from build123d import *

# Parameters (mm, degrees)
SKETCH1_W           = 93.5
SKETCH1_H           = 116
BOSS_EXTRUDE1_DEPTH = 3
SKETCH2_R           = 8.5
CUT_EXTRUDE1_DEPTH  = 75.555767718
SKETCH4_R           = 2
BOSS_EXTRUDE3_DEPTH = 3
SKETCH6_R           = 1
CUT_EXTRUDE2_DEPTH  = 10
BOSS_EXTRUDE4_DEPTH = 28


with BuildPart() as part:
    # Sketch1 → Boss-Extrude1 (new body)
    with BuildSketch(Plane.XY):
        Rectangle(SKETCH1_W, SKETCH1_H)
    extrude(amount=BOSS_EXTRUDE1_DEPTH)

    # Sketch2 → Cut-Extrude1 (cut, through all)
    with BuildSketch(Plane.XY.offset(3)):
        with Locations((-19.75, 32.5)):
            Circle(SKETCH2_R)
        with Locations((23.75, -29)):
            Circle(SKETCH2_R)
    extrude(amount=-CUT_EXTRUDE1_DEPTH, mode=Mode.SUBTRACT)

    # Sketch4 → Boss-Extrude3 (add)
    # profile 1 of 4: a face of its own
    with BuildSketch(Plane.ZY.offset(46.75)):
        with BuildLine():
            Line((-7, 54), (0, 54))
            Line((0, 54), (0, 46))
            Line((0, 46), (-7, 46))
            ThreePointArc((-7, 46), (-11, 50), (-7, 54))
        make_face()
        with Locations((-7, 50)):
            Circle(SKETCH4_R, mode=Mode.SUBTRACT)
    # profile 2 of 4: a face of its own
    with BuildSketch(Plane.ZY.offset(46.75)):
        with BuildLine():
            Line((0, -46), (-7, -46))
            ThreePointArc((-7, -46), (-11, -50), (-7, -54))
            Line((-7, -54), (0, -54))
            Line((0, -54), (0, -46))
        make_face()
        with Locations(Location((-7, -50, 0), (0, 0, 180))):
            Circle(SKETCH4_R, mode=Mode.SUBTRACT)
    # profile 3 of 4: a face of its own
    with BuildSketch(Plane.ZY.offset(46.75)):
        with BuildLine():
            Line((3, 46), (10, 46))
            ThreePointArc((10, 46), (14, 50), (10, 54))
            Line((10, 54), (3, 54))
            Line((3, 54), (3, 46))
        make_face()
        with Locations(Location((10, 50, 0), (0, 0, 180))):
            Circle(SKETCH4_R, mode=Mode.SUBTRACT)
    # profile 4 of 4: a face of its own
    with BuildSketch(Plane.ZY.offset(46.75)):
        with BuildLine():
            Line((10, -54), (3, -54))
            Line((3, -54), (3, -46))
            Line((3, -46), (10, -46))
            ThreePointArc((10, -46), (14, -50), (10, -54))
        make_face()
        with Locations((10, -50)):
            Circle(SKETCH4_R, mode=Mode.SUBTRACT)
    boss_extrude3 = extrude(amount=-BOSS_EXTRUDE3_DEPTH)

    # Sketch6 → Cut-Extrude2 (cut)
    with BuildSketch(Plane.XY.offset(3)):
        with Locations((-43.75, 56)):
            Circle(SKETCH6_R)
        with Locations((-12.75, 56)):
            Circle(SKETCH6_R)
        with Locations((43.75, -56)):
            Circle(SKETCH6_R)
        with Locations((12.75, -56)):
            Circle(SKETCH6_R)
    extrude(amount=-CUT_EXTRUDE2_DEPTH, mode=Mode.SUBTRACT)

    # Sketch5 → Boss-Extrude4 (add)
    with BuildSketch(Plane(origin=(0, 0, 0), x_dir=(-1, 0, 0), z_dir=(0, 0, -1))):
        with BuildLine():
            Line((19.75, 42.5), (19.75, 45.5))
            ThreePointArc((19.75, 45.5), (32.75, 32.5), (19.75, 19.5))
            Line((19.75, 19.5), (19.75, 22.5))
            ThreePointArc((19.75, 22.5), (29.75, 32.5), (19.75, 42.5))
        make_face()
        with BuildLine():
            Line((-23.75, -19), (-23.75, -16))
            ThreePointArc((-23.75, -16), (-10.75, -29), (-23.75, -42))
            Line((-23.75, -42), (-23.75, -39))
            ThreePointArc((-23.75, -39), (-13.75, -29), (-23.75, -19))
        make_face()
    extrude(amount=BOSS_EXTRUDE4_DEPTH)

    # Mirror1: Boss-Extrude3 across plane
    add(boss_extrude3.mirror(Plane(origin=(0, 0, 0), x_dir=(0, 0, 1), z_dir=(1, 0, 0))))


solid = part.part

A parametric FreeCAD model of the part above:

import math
import FreeCAD as App
import Part
import Sketcher
from FreeCAD import Vector


def add_polygon(sketch, points):
    """Adds a closed chain of lines whose ends are joined by coincident constraints."""
    first, n = sketch.GeometryCount, len(points)
    for a, b in zip(points, points[1:] + points[:1]):
        sketch.addGeometry(Part.LineSegment(App.Vector(*a, 0), App.Vector(*b, 0)), False)
    for i in range(n):
        sketch.addConstraint(Sketcher.Constraint("Coincident", first + i, 2, first + (i + 1) % n, 1))

doc = App.newDocument("Part")
body = doc.addObject("PartDesign::Body", "Body")

sketch1 = body.newObject("Sketcher::SketchObject", "Sketch")
sketch1.AttachmentSupport = (doc.getObject("XY_Plane"), [""])
sketch1.MapMode = "FlatFace"
add_polygon(sketch1, [(-47, 58), (-47, -58), (47, -58), (47, 58)])
sketch1.addConstraint(Sketcher.Constraint("Vertical", 0))
sketch1.addConstraint(Sketcher.Constraint("Horizontal", 1))
sketch1.addConstraint(Sketcher.Constraint("Vertical", 2))
sketch1.addConstraint(Sketcher.Constraint("Horizontal", 3))
sketch1.addConstraint(Sketcher.Constraint("Symmetric", 0, 2, 2, 2, -1, 1))
sketch1.addConstraint(Sketcher.Constraint("DistanceY", 0, 2, 0, 1, 116.0))
sketch1.addConstraint(Sketcher.Constraint("DistanceX", 1, 1, 1, 2, 93.5))
pad1 = body.newObject("PartDesign::Pad", "Pad")
pad1.Profile = sketch1
pad1.Length = 3

sketch2 = body.newObject("Sketcher::SketchObject", "Sketch001")
sketch2.AttachmentSupport = (doc.getObject("XY_Plane"), [""])
sketch2.MapMode = "FlatFace"
sketch2.AttachmentOffset = App.Placement(Vector(0, 0, 3), App.Rotation())
sketch2.addGeometry(Part.Circle(Vector(-20, 32, 0), Vector(0, 0, 1), 8), False)
sketch2.addGeometry(Part.Circle(Vector(24, -29, 0), Vector(0, 0, 1), 8), False)
sketch2.addConstraint(Sketcher.Constraint("Equal", 0, 1))
sketch2.addConstraint(Sketcher.Constraint("Diameter", 0, 17.0))
sketch2.addConstraint(Sketcher.Constraint("DistanceY", 1, 3, -1, 1, 29.0))
sketch2.addConstraint(Sketcher.Constraint("DistanceY", -1, 1, 0, 3, 32.5))
sketch2.addConstraint(Sketcher.Constraint("DistanceX", 0, 3, 1, 3, 43.5))
sketch2.addConstraint(Sketcher.Constraint("DistanceX", 0, 3, -1, 1, 19.75))
pocket1 = body.newObject("PartDesign::Pocket", "Pocket")
pocket1.Profile = sketch2
pocket1.Type = "ThroughAll"

sketch3 = body.newObject("Sketcher::SketchObject", "Sketch002")
sketch3.AttachmentSupport = (doc.getObject("YZ_Plane"), [""])
sketch3.MapMode = "FlatFace"
sketch3.AttachmentOffset = App.Placement(Vector(0, 0, -46.75), App.Rotation())
sketch3.addGeometry(Part.LineSegment(Vector(54, 0, 0), Vector(54, -7, 0)), False)
sketch3.addGeometry(Part.ArcOfCircle(Part.Circle(Vector(50, -7, 0), Vector(0, 0, 1), 4), math.radians(180), math.radians(360)), False)
sketch3.addGeometry(Part.LineSegment(Vector(46, -7, 0), Vector(46, 0, 0)), False)
sketch3.addGeometry(Part.LineSegment(Vector(46, 0, 0), Vector(54, 0, 0)), False)
sketch3.addGeometry(Part.Circle(Vector(50, -7, 0), Vector(0, 0, 1), 2), False)
sketch3.addGeometry(Part.LineSegment(Vector(-46, 0, 0), Vector(-46, -7, 0)), False)
sketch3.addGeometry(Part.ArcOfCircle(Part.Circle(Vector(-50, -7, 0), Vector(0, 0, 1), 4), math.radians(180), math.radians(360)), False)
sketch3.addGeometry(Part.LineSegment(Vector(-54, -7, 0), Vector(-54, 0, 0)), False)
sketch3.addGeometry(Part.LineSegment(Vector(-54, 0, 0), Vector(-46, 0, 0)), False)
sketch3.addGeometry(Part.Circle(Vector(-50, -7, 0), Vector(0, 0, 1), 2), False)
sketch3.addGeometry(Part.LineSegment(Vector(46, 3, 0), Vector(46, 10, 0)), False)
sketch3.addGeometry(Part.ArcOfCircle(Part.Circle(Vector(50, 10, 0), Vector(0, 0, 1), 4), math.radians(0), math.radians(180)), False)
sketch3.addGeometry(Part.LineSegment(Vector(54, 10, 0), Vector(54, 3, 0)), False)
sketch3.addGeometry(Part.LineSegment(Vector(54, 3, 0), Vector(46, 3, 0)), False)
sketch3.addGeometry(Part.Circle(Vector(50, 10, 0), Vector(0, 0, 1), 2), False)
sketch3.addGeometry(Part.LineSegment(Vector(-54, 3, 0), Vector(-54, 10, 0)), False)
sketch3.addGeometry(Part.ArcOfCircle(Part.Circle(Vector(-50, 10, 0), Vector(0, 0, 1), 4), math.radians(0), math.radians(180)), False)
sketch3.addGeometry(Part.LineSegment(Vector(-46, 10, 0), Vector(-46, 3, 0)), False)
sketch3.addGeometry(Part.LineSegment(Vector(-46, 3, 0), Vector(-54, 3, 0)), False)
sketch3.addGeometry(Part.Circle(Vector(-50, 10, 0), Vector(0, 0, 1), 2), False)
sketch3.addConstraint(Sketcher.Constraint("Tangent", 0, 2, 1, 2))
sketch3.addConstraint(Sketcher.Constraint("Tangent", 1, 1, 2, 1))
sketch3.addConstraint(Sketcher.Constraint("Coincident", 2, 2, 3, 1))
sketch3.addConstraint(Sketcher.Constraint("Coincident", 3, 2, 0, 1))
sketch3.addConstraint(Sketcher.Constraint("Tangent", 5, 2, 6, 2))
sketch3.addConstraint(Sketcher.Constraint("Tangent", 6, 1, 7, 1))
sketch3.addConstraint(Sketcher.Constraint("Coincident", 7, 2, 8, 1))
sketch3.addConstraint(Sketcher.Constraint("Coincident", 8, 2, 5, 1))
sketch3.addConstraint(Sketcher.Constraint("Tangent", 10, 2, 11, 2))
sketch3.addConstraint(Sketcher.Constraint("Tangent", 11, 1, 12, 1))
sketch3.addConstraint(Sketcher.Constraint("Coincident", 12, 2, 13, 1))
sketch3.addConstraint(Sketcher.Constraint("Coincident", 13, 2, 10, 1))
sketch3.addConstraint(Sketcher.Constraint("Tangent", 15, 2, 16, 2))
sketch3.addConstraint(Sketcher.Constraint("Tangent", 16, 1, 17, 1))
sketch3.addConstraint(Sketcher.Constraint("Coincident", 17, 2, 18, 1))
sketch3.addConstraint(Sketcher.Constraint("Coincident", 18, 2, 15, 1))
sketch3.addConstraint(Sketcher.Constraint("Vertical", 0))
sketch3.addConstraint(Sketcher.Constraint("Vertical", 2))
sketch3.addConstraint(Sketcher.Constraint("Horizontal", 3))
sketch3.addConstraint(Sketcher.Constraint("Vertical", 5))
sketch3.addConstraint(Sketcher.Constraint("Vertical", 7))
sketch3.addConstraint(Sketcher.Constraint("Horizontal", 8))
sketch3.addConstraint(Sketcher.Constraint("Vertical", 10))
sketch3.addConstraint(Sketcher.Constraint("Vertical", 12))
sketch3.addConstraint(Sketcher.Constraint("Horizontal", 13))
sketch3.addConstraint(Sketcher.Constraint("Vertical", 15))
sketch3.addConstraint(Sketcher.Constraint("Vertical", 17))
sketch3.addConstraint(Sketcher.Constraint("Horizontal", 18))
sketch3.addConstraint(Sketcher.Constraint("Coincident", 4, 3, 1, 3))
sketch3.addConstraint(Sketcher.Constraint("Coincident", 9, 3, 6, 3))
sketch3.addConstraint(Sketcher.Constraint("Coincident", 14, 3, 11, 3))
sketch3.addConstraint(Sketcher.Constraint("Coincident", 19, 3, 16, 3))
sketch3.addConstraint(Sketcher.Constraint("Equal", 1, 6))
sketch3.addConstraint(Sketcher.Constraint("Equal", 4, 9))
sketch3.addConstraint(Sketcher.Constraint("Equal", 6, 11))
sketch3.addConstraint(Sketcher.Constraint("Equal", 9, 14))
sketch3.addConstraint(Sketcher.Constraint("Equal", 11, 16))
sketch3.addConstraint(Sketcher.Constraint("Equal", 14, 19))
sketch3.addConstraint(Sketcher.Constraint("Symmetric", 3, 2, 7, 2, -1, 1))
sketch3.addConstraint(Sketcher.Constraint("Symmetric", 11, 3, 16, 3, -2))
sketch3.addConstraint(Sketcher.Constraint("PointOnObject", 2, 2, -1))
sketch3.addConstraint(Sketcher.Constraint("Horizontal", 4, 3, 6, 3))
sketch3.addConstraint(Sketcher.Constraint("Horizontal", 13, 2, 17, 2))
sketch3.addConstraint(Sketcher.Constraint("Vertical", 4, 3, 11, 3))
sketch3.addConstraint(Sketcher.Constraint("Equal", 7, 10))
sketch3.addConstraint(Sketcher.Constraint("Diameter", 4, 4.0))
sketch3.addConstraint(Sketcher.Constraint("Radius", 1, 4.0))
sketch3.addConstraint(Sketcher.Constraint("DistanceY", 0, 2, 0, 1, 7.0))
sketch3.addConstraint(Sketcher.Constraint("DistanceX", -1, 1, 1, 3, 50.0))
sketch3.addConstraint(Sketcher.Constraint("DistanceY", -1, 1, 11, 3, 10.0))
pad2 = body.newObject("PartDesign::Pad", "Pad001")
pad2.Profile = sketch3
pad2.Length = 3

sketch4 = body.newObject("Sketcher::SketchObject", "Sketch003")
sketch4.AttachmentSupport = (doc.getObject("XY_Plane"), [""])
sketch4.MapMode = "FlatFace"
sketch4.AttachmentOffset = App.Placement(Vector(0, 0, 3), App.Rotation())
sketch4.addGeometry(Part.Circle(Vector(-43.8, 56, 0), Vector(0, 0, 1), 1), False)
sketch4.addGeometry(Part.Circle(Vector(-12.8, 56, 0), Vector(0, 0, 1), 1), False)
sketch4.addGeometry(Part.Circle(Vector(43.8, -56, 0), Vector(0, 0, 1), 1), False)
sketch4.addGeometry(Part.Circle(Vector(12.8, -56, 0), Vector(0, 0, 1), 1), False)
sketch4.addConstraint(Sketcher.Constraint("Equal", 0, 1))
sketch4.addConstraint(Sketcher.Constraint("Equal", 1, 2))
sketch4.addConstraint(Sketcher.Constraint("Equal", 2, 3))
sketch4.addConstraint(Sketcher.Constraint("Symmetric", 0, 3, 2, 3, -1, 1))
sketch4.addConstraint(Sketcher.Constraint("Symmetric", 1, 3, 3, 3, -1, 1))
sketch4.addConstraint(Sketcher.Constraint("Horizontal", 0, 3, 1, 3))
sketch4.addConstraint(Sketcher.Constraint("Diameter", 0, 2.0))
sketch4.addConstraint(Sketcher.Constraint("DistanceY", -1, 1, 0, 3, 56.0))
sketch4.addConstraint(Sketcher.Constraint("DistanceX", 0, 3, 1, 3, 31.0))
sketch4.addConstraint(Sketcher.Constraint("DistanceX", 1, 3, 2, 3, 56.5))
pocket2 = body.newObject("PartDesign::Pocket", "Pocket001")
pocket2.Profile = sketch4
pocket2.Length = 10

sketch5 = body.newObject("Sketcher::SketchObject", "Sketch004")
sketch5.AttachmentSupport = (doc.getObject("XY_Plane"), [""])
sketch5.MapMode = "FlatFace"
sketch5.addGeometry(Part.LineSegment(Vector(-19.8, 45.5, 0), Vector(-19.8, 42.5, 0)), False)
sketch5.addGeometry(Part.ArcOfCircle(Part.Circle(Vector(-19.8, 32.5, 0), Vector(0, 0, 1), 10), math.radians(90), math.radians(270)), False)
sketch5.addGeometry(Part.LineSegment(Vector(-19.8, 22.5, 0), Vector(-19.8, 19.5, 0)), False)
sketch5.addGeometry(Part.ArcOfCircle(Part.Circle(Vector(-19.8, 32.5, 0), Vector(0, 0, 1), 13), math.radians(90), math.radians(270)), False)
sketch5.addGeometry(Part.LineSegment(Vector(23.8, -16, 0), Vector(23.8, -19, 0)), False)
sketch5.addGeometry(Part.ArcOfCircle(Part.Circle(Vector(23.8, -29, 0), Vector(0, 0, 1), 10), math.radians(90), math.radians(270)), False)
sketch5.addGeometry(Part.LineSegment(Vector(23.8, -39, 0), Vector(23.8, -42, 0)), False)
sketch5.addGeometry(Part.ArcOfCircle(Part.Circle(Vector(23.8, -29, 0), Vector(0, 0, 1), 13), math.radians(90), math.radians(270)), False)
sketch5.addConstraint(Sketcher.Constraint("Coincident", 0, 2, 1, 1))
sketch5.addConstraint(Sketcher.Constraint("Coincident", 1, 2, 2, 1))
sketch5.addConstraint(Sketcher.Constraint("Coincident", 2, 2, 3, 2))
sketch5.addConstraint(Sketcher.Constraint("Coincident", 3, 1, 0, 1))
sketch5.addConstraint(Sketcher.Constraint("Coincident", 4, 2, 5, 1))
sketch5.addConstraint(Sketcher.Constraint("Coincident", 5, 2, 6, 1))
sketch5.addConstraint(Sketcher.Constraint("Coincident", 6, 2, 7, 2))
sketch5.addConstraint(Sketcher.Constraint("Coincident", 7, 1, 4, 1))
sketch5.addConstraint(Sketcher.Constraint("Vertical", 0))
sketch5.addConstraint(Sketcher.Constraint("Vertical", 2))
sketch5.addConstraint(Sketcher.Constraint("Vertical", 4))
sketch5.addConstraint(Sketcher.Constraint("Vertical", 6))
sketch5.addConstraint(Sketcher.Constraint("Coincident", 3, 3, 1, 3))
sketch5.addConstraint(Sketcher.Constraint("Coincident", 7, 3, 5, 3))
sketch5.addConstraint(Sketcher.Constraint("Equal", 1, 5))
sketch5.addConstraint(Sketcher.Constraint("Equal", 3, 7))
sketch5.addConstraint(Sketcher.Constraint("Vertical", 3, 3, 0, 2))
sketch5.addConstraint(Sketcher.Constraint("Vertical", 0, 2, 1, 2))
sketch5.addConstraint(Sketcher.Constraint("Vertical", 7, 3, 4, 2))
sketch5.addConstraint(Sketcher.Constraint("Vertical", 4, 2, 5, 2))
sketch5.addConstraint(Sketcher.Constraint("Radius", 1, 10.0))
sketch5.addConstraint(Sketcher.Constraint("Radius", 3, 13.0))
sketch5.addConstraint(Sketcher.Constraint("DistanceY", 5, 3, -1, 1, 29.0))
sketch5.addConstraint(Sketcher.Constraint("DistanceY", -1, 1, 1, 3, 32.5))
sketch5.addConstraint(Sketcher.Constraint("DistanceX", 1, 3, 5, 3, 43.5))
sketch5.addConstraint(Sketcher.Constraint("DistanceX", 1, 3, -1, 1, 19.75))
pad3 = body.newObject("PartDesign::Pad", "Pad002")
pad3.Profile = sketch5
pad3.Length = 28
pad3.Reversed = True
doc.recompute()

mirrored = body.newObject("PartDesign::Mirrored", "Mirrored")
mirrored.Originals = [pad2]
mirrored.MirrorPlane = (doc.getObject("YZ_Plane"), [""])
body.Tip = mirrored

doc.recompute()
